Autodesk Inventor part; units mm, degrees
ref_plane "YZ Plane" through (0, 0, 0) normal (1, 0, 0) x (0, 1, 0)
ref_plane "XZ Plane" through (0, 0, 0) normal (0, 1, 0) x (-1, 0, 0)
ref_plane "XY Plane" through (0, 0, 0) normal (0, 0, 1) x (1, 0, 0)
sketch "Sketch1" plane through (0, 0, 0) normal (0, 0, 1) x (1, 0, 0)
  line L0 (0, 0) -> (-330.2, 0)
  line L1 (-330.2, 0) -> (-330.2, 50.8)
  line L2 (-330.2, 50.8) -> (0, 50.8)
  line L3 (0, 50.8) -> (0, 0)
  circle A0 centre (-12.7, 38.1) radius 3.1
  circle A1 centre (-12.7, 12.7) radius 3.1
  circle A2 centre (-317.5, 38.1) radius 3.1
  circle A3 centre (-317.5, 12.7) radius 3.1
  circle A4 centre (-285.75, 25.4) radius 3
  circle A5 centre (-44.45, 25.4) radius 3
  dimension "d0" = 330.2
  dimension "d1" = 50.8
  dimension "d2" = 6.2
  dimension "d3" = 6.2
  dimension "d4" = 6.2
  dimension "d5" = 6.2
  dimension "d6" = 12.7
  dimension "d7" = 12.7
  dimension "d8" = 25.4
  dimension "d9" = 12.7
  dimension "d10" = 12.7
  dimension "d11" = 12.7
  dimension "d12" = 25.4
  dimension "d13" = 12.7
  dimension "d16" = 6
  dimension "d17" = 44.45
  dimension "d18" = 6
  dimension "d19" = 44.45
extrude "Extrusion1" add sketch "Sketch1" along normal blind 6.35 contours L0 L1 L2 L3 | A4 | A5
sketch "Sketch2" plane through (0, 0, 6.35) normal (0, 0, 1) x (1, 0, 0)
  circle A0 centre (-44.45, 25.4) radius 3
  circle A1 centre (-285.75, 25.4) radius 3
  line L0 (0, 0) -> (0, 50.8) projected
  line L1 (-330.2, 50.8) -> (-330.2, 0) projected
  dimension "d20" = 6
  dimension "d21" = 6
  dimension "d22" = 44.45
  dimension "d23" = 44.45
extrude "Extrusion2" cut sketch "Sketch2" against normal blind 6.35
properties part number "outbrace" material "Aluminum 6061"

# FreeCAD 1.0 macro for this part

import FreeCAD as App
import Part
import Sketcher
Q = App.Units.Quantity

doc = App.newDocument("Part")
params = doc.addObject("Spreadsheet::Sheet", "Params")
for row, (alias, value) in enumerate([
    ("sketch1_width", "13 in"),
    ("sketch1_height", "2 in"),
    ("pad1_length", "0.25 in"),
    ("pocket1_length", "0.25 in"),
], start=1):
    params.set(f"A{row}", alias)
    params.set(f"B{row}", "=" + value)
    params.setAlias(f"B{row}", alias)

body = doc.addObject("PartDesign::Body", "Body")

sketch1 = body.newObject("Sketcher::SketchObject", "Sketch")
sketch1.AttachmentSupport = (doc.getObject("XY_Plane"), [""])
sketch1.MapMode = "FlatFace"
sketch1.addGeometry(Part.LineSegment(App.Vector(-330.2, 0, 0), App.Vector(0, 0, 0)), False)
sketch1.addGeometry(Part.LineSegment(App.Vector(0, 0, 0), App.Vector(0, 50.8, 0)), False)
sketch1.addGeometry(Part.LineSegment(App.Vector(0, 50.8, 0), App.Vector(-330.2, 50.8, 0)), False)
sketch1.addGeometry(Part.LineSegment(App.Vector(-330.2, 50.8, 0), App.Vector(-330.2, 0, 0)), False)
sketch1.addGeometry(Part.Circle(App.Vector(-317.5, 12.7, 0), App.Vector(0, 0, 1), 3.1), False)
sketch1.addGeometry(Part.Circle(App.Vector(-12.7, 12.7, 0), App.Vector(0, 0, 1), 3.1), False)
sketch1.addGeometry(Part.Circle(App.Vector(-317.5, 38.1, 0), App.Vector(0, 0, 1), 3.1), False)
sketch1.addGeometry(Part.Circle(App.Vector(-12.7, 38.1, 0), App.Vector(0, 0, 1), 3.1), False)
sketch1.addConstraint(Sketcher.Constraint("Coincident", 0, 2, 1, 1))
sketch1.addConstraint(Sketcher.Constraint("Coincident", 1, 2, 2, 1))
sketch1.addConstraint(Sketcher.Constraint("Coincident", 2, 2, 3, 1))
sketch1.addConstraint(Sketcher.Constraint("Coincident", 3, 2, 0, 1))
sketch1.addConstraint(Sketcher.Constraint("Horizontal", 0))
sketch1.addConstraint(Sketcher.Constraint("Vertical", 1))
sketch1.addConstraint(Sketcher.Constraint("Horizontal", 2))
sketch1.addConstraint(Sketcher.Constraint("Vertical", 3))
sketch1.addConstraint(Sketcher.Constraint("Coincident", 0, 2, -1, 1))
sketch1.addConstraint(Sketcher.Constraint("Equal", 4, 5))
sketch1.addConstraint(Sketcher.Constraint("Equal", 5, 6))
sketch1.addConstraint(Sketcher.Constraint("Equal", 6, 7))
sketch1.addConstraint(Sketcher.Constraint("Horizontal", 4, 3, 5, 3))
sketch1.addConstraint(Sketcher.Constraint("Horizontal", 6, 3, 7, 3))
sketch1.addConstraint(Sketcher.Constraint("Vertical", 4, 3, 6, 3))
sketch1.addConstraint(Sketcher.Constraint("Vertical", 5, 3, 7, 3))
sketch1.addConstraint(Sketcher.Constraint("DistanceX", 0, 1, 0, 2, Q("13 in")))
sketch1.addConstraint(Sketcher.Constraint("DistanceY", 1, 1, 1, 2, Q("2 in")))
sketch1.addConstraint(Sketcher.Constraint("DistanceY", 4, 3, 6, 3, Q("1 in")))
sketch1.addConstraint(Sketcher.Constraint("Diameter", 4, Q("0.2441 in")))
sketch1.addConstraint(Sketcher.Constraint("DistanceY", -1, 1, 4, 3, Q("0.5 in")))
sketch1.addConstraint(Sketcher.Constraint("DistanceX", 5, 3, -1, 1, Q("0.5 in")))
sketch1.addConstraint(Sketcher.Constraint("DistanceX", 2, 2, 6, 3, Q("0.5 in")))
sketch1.setExpression("Constraints[16]", "Params.sketch1_width")
sketch1.setExpression("Constraints[17]", "Params.sketch1_height")
pad1 = body.newObject("PartDesign::Pad", "Pad")
pad1.Profile = sketch1
pad1.setExpression("Length", "Params.pad1_length")

sketch2 = body.newObject("Sketcher::SketchObject", "Sketch001")
sketch2.AttachmentSupport = (doc.getObject("XY_Plane"), [""])
sketch2.MapMode = "FlatFace"
sketch2.AttachmentOffset = App.Placement(App.Vector(0, 0, 0.25 * 25.4), App.Rotation())
sketch2.addGeometry(Part.Circle(App.Vector(-44.45, 25.4, 0), App.Vector(0, 0, 1), 3), False)
sketch2.addGeometry(Part.Circle(App.Vector(-285.75, 25.4, 0), App.Vector(0, 0, 1), 3), False)
sketch2.addConstraint(Sketcher.Constraint("Equal", 0, 1))
sketch2.addConstraint(Sketcher.Constraint("Horizontal", 0, 3, 1, 3))
sketch2.addConstraint(Sketcher.Constraint("Diameter", 0, Q("6 mm")))
sketch2.addConstraint(Sketcher.Constraint("DistanceX", 0, 3, -1, 1, Q("1.75 in")))
sketch2.addConstraint(Sketcher.Constraint("DistanceY", -1, 1, 0, 3, Q("1 in")))
sketch2.addConstraint(Sketcher.Constraint("DistanceX", 1, 3, 0, 3, Q("9.5 in")))
pocket1 = body.newObject("PartDesign::Pocket", "Pocket")
pocket1.Profile = sketch2
pocket1.setExpression("Length", "Params.pocket1_length")

doc.recompute()
